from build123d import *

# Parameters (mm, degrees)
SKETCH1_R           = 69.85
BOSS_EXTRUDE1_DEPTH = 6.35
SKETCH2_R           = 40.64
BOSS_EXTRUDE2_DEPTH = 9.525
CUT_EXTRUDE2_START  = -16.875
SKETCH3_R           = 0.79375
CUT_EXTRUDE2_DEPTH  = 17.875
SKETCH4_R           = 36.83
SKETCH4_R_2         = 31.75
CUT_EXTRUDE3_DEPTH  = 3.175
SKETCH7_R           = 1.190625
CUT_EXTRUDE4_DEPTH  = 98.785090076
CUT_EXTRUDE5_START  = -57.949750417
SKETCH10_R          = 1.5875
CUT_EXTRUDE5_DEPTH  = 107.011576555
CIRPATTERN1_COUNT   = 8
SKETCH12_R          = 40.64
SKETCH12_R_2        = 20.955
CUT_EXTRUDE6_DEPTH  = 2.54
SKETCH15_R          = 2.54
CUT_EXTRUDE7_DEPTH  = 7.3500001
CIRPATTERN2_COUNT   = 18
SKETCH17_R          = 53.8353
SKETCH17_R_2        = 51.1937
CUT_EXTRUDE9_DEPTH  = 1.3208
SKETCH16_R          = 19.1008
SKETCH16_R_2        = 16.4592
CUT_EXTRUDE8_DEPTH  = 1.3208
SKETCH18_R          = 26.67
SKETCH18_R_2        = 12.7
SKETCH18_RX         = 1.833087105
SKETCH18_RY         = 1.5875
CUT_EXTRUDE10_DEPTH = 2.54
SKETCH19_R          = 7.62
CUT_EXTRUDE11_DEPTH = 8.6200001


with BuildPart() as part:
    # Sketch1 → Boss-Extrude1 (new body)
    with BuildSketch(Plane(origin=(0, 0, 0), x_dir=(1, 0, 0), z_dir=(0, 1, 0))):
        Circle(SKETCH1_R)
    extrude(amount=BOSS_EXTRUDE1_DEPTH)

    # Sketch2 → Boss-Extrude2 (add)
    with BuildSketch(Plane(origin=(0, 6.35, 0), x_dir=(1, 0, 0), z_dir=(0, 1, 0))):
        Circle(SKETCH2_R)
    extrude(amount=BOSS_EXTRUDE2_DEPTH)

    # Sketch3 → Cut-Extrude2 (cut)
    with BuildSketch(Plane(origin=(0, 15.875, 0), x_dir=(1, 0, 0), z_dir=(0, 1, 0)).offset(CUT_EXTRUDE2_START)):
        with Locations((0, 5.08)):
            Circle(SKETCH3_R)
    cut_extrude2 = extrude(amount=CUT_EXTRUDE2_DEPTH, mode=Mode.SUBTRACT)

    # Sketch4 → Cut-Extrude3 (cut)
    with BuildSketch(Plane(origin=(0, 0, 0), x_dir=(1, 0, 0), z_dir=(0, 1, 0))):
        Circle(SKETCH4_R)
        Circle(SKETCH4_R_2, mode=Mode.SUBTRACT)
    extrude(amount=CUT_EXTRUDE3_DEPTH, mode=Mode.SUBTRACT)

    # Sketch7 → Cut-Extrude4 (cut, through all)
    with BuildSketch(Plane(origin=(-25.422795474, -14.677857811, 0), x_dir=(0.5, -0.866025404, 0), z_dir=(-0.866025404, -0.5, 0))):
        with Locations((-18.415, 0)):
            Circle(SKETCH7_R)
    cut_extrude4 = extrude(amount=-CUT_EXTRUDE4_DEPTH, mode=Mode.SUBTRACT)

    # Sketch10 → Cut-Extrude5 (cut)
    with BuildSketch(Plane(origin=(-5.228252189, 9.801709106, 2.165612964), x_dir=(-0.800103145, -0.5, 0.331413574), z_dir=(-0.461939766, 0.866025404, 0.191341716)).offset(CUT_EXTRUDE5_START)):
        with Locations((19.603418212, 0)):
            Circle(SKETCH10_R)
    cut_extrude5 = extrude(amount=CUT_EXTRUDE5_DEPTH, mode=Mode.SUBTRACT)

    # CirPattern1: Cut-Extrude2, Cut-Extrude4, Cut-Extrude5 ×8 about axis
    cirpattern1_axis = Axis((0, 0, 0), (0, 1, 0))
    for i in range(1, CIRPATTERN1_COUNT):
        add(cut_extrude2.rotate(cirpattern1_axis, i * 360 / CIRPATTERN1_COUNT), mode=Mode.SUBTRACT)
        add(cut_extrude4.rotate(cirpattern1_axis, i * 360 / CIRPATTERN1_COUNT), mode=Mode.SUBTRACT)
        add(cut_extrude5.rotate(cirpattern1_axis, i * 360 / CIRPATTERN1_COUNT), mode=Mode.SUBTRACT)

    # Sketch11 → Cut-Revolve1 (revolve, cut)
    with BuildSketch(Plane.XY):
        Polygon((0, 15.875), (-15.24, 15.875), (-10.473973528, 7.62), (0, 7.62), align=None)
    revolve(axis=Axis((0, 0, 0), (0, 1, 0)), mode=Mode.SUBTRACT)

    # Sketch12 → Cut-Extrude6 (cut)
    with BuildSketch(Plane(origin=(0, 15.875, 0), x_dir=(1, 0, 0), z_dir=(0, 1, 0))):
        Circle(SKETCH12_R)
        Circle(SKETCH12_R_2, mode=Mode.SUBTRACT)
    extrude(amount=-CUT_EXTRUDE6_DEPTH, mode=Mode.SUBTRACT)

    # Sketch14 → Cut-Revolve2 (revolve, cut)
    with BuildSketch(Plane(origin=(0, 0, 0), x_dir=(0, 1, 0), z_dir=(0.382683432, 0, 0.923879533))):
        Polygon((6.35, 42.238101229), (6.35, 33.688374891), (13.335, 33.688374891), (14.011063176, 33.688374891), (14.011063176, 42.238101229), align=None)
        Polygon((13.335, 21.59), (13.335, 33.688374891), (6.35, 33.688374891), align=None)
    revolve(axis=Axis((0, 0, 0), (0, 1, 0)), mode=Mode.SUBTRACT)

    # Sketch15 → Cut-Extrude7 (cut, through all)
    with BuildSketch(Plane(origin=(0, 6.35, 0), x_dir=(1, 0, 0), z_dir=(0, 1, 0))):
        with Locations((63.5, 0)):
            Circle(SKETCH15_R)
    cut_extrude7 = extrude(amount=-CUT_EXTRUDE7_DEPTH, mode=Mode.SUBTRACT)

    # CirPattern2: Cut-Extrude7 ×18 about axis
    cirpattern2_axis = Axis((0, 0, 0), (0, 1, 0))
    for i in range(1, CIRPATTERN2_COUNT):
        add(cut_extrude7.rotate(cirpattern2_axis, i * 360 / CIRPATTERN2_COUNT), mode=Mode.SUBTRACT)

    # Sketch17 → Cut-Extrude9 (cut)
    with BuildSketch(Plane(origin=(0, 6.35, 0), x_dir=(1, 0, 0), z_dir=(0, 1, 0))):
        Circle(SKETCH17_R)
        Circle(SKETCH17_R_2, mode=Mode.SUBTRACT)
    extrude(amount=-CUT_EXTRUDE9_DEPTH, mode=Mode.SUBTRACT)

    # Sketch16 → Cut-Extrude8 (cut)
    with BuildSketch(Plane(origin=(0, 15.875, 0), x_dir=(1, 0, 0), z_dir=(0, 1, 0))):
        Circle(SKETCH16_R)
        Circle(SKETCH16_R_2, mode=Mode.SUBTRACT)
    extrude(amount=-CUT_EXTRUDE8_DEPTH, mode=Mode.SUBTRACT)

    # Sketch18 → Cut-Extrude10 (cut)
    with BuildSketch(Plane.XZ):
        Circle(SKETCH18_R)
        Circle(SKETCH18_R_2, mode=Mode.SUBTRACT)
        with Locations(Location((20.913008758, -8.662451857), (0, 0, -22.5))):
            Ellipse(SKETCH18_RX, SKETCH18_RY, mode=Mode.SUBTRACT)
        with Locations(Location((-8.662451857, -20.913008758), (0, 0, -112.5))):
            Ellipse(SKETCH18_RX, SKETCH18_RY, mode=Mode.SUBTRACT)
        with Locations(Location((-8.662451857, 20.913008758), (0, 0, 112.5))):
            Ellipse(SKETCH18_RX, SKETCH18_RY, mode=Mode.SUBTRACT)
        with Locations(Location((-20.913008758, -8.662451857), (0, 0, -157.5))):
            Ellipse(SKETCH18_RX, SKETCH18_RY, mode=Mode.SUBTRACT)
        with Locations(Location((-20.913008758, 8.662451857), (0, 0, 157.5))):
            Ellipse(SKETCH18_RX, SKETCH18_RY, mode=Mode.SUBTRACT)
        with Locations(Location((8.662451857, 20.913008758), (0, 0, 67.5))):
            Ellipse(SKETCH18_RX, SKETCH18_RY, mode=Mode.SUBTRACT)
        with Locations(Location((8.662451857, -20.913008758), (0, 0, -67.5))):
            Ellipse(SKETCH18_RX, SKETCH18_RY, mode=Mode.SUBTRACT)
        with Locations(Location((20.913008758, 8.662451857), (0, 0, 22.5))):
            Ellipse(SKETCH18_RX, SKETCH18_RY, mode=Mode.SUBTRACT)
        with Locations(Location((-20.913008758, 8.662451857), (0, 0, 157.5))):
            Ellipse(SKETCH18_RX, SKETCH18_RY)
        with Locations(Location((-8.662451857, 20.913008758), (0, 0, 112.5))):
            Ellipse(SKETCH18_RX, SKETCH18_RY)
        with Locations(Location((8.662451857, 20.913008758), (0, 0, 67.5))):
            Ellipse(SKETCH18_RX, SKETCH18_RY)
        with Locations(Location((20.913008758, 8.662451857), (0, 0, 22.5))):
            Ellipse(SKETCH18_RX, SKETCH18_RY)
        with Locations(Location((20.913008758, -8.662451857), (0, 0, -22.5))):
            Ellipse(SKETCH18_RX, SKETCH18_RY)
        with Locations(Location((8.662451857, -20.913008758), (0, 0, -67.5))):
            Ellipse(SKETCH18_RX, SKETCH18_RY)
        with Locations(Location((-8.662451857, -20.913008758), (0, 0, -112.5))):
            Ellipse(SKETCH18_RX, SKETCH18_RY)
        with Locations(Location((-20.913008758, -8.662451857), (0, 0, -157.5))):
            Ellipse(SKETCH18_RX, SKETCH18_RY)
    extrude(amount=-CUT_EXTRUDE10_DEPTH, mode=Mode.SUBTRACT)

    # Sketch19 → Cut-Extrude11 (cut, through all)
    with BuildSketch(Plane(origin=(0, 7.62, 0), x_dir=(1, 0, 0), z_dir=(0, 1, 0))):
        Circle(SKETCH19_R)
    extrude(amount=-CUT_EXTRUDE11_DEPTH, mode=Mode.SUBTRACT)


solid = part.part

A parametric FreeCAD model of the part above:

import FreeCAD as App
import Part
import Sketcher
Q = App.Units.Quantity


def add_polygon(sketch, points):
    """Adds a closed chain of lines whose ends are joined by coincident constraints."""
    first, n = sketch.GeometryCount, len(points)
    for a, b in zip(points, points[1:] + points[:1]):
        sketch.addGeometry(Part.LineSegment(App.Vector(*a, 0), App.Vector(*b, 0)), False)
    for i in range(n):
        sketch.addConstraint(Sketcher.Constraint("Coincident", first + i, 2, first + (i + 1) % n, 1))

doc = App.newDocument("Part")
params = doc.addObject("Spreadsheet::Sheet", "Params")
for row, (alias, value) in enumerate([
    ("sketch1_diameter", "5.5 in"),
    ("pad1_length", "0.25 in"),
    ("sketch2_diameter", "3.2 in"),
    ("pad2_length", "0.375 in"),
    ("sketch3_diameter", "0.0625 in"),
    ("pocket1_length", "17.875 mm"),
    ("sketch4_diameter", "2.9 in"),
    ("sketch4_diameter2", "2.5 in"),
    ("pocket2_length", "0.125 in"),
    ("sketch5_diameter", "0.09375 in"),
    ("sketch6_diameter", "0.125 in"),
    ("pocket4_length", "107.011577 mm"),
    ("sketch7_width", "0.6 in"),
    ("sketch7_height", "0.325 in"),
    ("groove_angle", "360 deg"),
    ("sketch8_diameter", "3.2 in"),
    ("sketch8_diameter2", "1.65 in"),
    ("pocket5_length", "0.1 in"),
    ("sketch9_length", "0.55 in"),
    ("groove2_angle", "360 deg"),
    ("sketch10_diameter", "0.2 in"),
    ("sketch11_diameter", "4.239 in"),
    ("sketch11_diameter2", "4.031 in"),
    ("pocket7_length", "0.052 in"),
    ("sketch12_diameter", "1.504 in"),
    ("sketch12_diameter2", "1.296 in"),
    ("pocket8_length", "0.052 in"),
    ("sketch13_diameter", "1 in"),
    ("sketch13_diameter2", "2.1 in"),
    ("pocket9_length", "0.1 in"),
    ("sketch14_diameter", "0.6 in"),
], start=1):
    params.set(f"A{row}", alias)
    params.set(f"B{row}", "=" + value)
    params.setAlias(f"B{row}", alias)

body = doc.addObject("PartDesign::Body", "Body")

# Sketch on XZ plane
sketch1 = body.newObject("Sketcher::SketchObject", "Sketch")
sketch1.AttachmentSupport = (doc.getObject("XZ_Plane"), [""])
sketch1.MapMode = "FlatFace"
sketch1.addGeometry(Part.Circle(App.Vector(0, 0, 0), App.Vector(0, 0, 1), 69.85), False)
sketch1.addConstraint([
    Sketcher.Constraint("Coincident", 0, 3, -1, 1),
    Sketcher.Constraint("Diameter", 0, Q("5.5 in")),
])
sketch1.setExpression("Constraints[1]", "Params.sketch1_diameter")
pad1 = body.newObject("PartDesign::Pad", "Pad")
pad1.Profile = sketch1
pad1.setExpression("Length", "Params.pad1_length")
pad1.Reversed = True

# Sketch on XZ plane
sketch2 = body.newObject("Sketcher::SketchObject", "Sketch001")
sketch2.AttachmentSupport = (doc.getObject("XZ_Plane"), [""])
sketch2.MapMode = "FlatFace"
sketch2.AttachmentOffset = App.Placement(App.Vector(0, 0, -0.25 * 25.4), App.Rotation())
sketch2.addGeometry(Part.Circle(App.Vector(0, 0, 0), App.Vector(0, 0, 1), 40.64), False)
sketch2.addConstraint([
    Sketcher.Constraint("Coincident", 0, 3, -1, 1),
    Sketcher.Constraint("Diameter", 0, Q("3.2 in")),
])
sketch2.setExpression("Constraints[1]", "Params.sketch2_diameter")
pad2 = body.newObject("PartDesign::Pad", "Pad001")
pad2.Profile = sketch2
pad2.setExpression("Length", "Params.pad2_length")
pad2.Reversed = True

# Sketch on XZ plane
sketch3 = body.newObject("Sketcher::SketchObject", "Sketch002")
sketch3.AttachmentSupport = (doc.getObject("XZ_Plane"), [""])
sketch3.MapMode = "FlatFace"
sketch3.AttachmentOffset = App.Placement(App.Vector(0, 0, 1), App.Rotation())
sketch3.addGeometry(Part.Circle(App.Vector(0, -5.08, 0), App.Vector(0, 0, 1), 0.79375), False)
sketch3.addConstraint([
    Sketcher.Constraint("PointOnObject", 0, 3, -2),
    Sketcher.Constraint("Diameter", 0, Q("0.0625 in")),
    Sketcher.Constraint("DistanceY", 0, 3, -1, 1, Q("0.2 in")),
])
sketch3.setExpression("Constraints[1]", "Params.sketch3_diameter")
pocket1 = body.newObject("PartDesign::Pocket", "Pocket")
pocket1.Profile = sketch3
pocket1.setExpression("Length", "Params.pocket1_length")

# Sketch on XZ plane
sketch4 = body.newObject("Sketcher::SketchObject", "Sketch003")
sketch4.AttachmentSupport = (doc.getObject("XZ_Plane"), [""])
sketch4.MapMode = "FlatFace"
sketch4.addGeometry([
    Part.Circle(App.Vector(0, 0, 0), App.Vector(0, 0, 1), 36.83),
    Part.Circle(App.Vector(0, 0, 0), App.Vector(0, 0, 1), 31.75),
], False)
sketch4.addConstraint([
    Sketcher.Constraint("Coincident", 0, 3, -1, 1),
    Sketcher.Constraint("Coincident", 1, 3, -1, 1),
    Sketcher.Constraint("Diameter", 0, Q("2.9 in")),
    Sketcher.Constraint("Diameter", 1, Q("2.5 in")),
])
sketch4.setExpression("Constraints[2]", "Params.sketch4_diameter")
sketch4.setExpression("Constraints[3]", "Params.sketch4_diameter2")
pocket2 = body.newObject("PartDesign::Pocket", "Pocket001")
pocket2.Profile = sketch4
pocket2.setExpression("Length", "Params.pocket2_length")

# Sketch on an angled plane
sketch5 = body.newObject("Sketcher::SketchObject", "Sketch004")
sketch5.Placement = App.Placement(App.Vector(-25.422795, -14.677858, 0), App.Rotation(App.Vector(0.5, -0.866025404, 0), App.Vector(0, 0, 1), App.Vector(-0.866025404, -0.5, 0), "ZXY"))
sketch5.addGeometry(Part.Circle(App.Vector(-18.415, 0, 0), App.Vector(0, 0, 1), 1.190625), False)
sketch5.addConstraint([
    Sketcher.Constraint("PointOnObject", 0, 3, -1),
    Sketcher.Constraint("Diameter", 0, Q("0.09375 in")),
    Sketcher.Constraint("DistanceX", 0, 3, -1, 1, Q("0.725 in")),
])
sketch5.setExpression("Constraints[1]", "Params.sketch5_diameter")
pocket3 = body.newObject("PartDesign::Pocket", "Pocket002")
pocket3.Profile = sketch5
pocket3.Type = "ThroughAll"

# Sketch on an angled plane
sketch6 = body.newObject("Sketcher::SketchObject", "Sketch005")
sketch6.Placement = App.Placement(App.Vector(21.541042, -40.384247, -8.922592), App.Rotation(App.Vector(-0.800103145, -0.5, 0.331413574), App.Vector(0.382683432, 0, 0.923879532), App.Vector(-0.461939766, 0.866025404, 0.191341716), "ZXY"))
sketch6.addGeometry(Part.Circle(App.Vector(19.603418, 0, 0), App.Vector(0, 0, 1), 1.5875), False)
sketch6.addConstraint([
    Sketcher.Constraint("PointOnObject", 0, 3, -1),
    Sketcher.Constraint("Diameter", 0, Q("0.125 in")),
    Sketcher.Constraint("DistanceX", -1, 1, 0, 3, 19.603418),
])
sketch6.setExpression("Constraints[1]", "Params.sketch6_diameter")
pocket4 = body.newObject("PartDesign::Pocket", "Pocket003")
pocket4.Profile = sketch6
pocket4.setExpression("Length", "Params.pocket4_length")
pocket4.Reversed = True
doc.recompute()

polarpattern = body.newObject("PartDesign::PolarPattern", "PolarPattern")
polarpattern.Originals = [pocket1, pocket3, pocket4]
polarpattern.Axis = (doc.getObject("Y_Axis"), [""])
polarpattern.Angle = 360
polarpattern.Occurrences = 8
body.Tip = polarpattern

# Sketch on XY plane
sketch7 = body.newObject("Sketcher::SketchObject", "Sketch006")
sketch7.AttachmentSupport = (doc.getObject("XY_Plane"), [""])
sketch7.MapMode = "FlatFace"
add_polygon(sketch7, [(0, 15.875), (-15.24, 15.875), (-10.473974, 7.62), (0, 7.62)])  # lines 0-3
sketch7.addConstraint([
    Sketcher.Constraint("Horizontal", 0),
    Sketcher.Constraint("Horizontal", 2),
    Sketcher.Constraint("Vertical", 3),
    Sketcher.Constraint("PointOnObject", 2, 2, -2),
    Sketcher.Constraint("DistanceX", 0, 2, 0, 1, Q("0.6 in")),
    Sketcher.Constraint("Angle", 1, Q("-60 deg")),
    Sketcher.Constraint("DistanceY", -1, 1, 1, 2, Q("0.3 in")),
    Sketcher.Constraint("DistanceY", 3, 1, 3, 2, Q("0.325 in")),
])
sketch7.setExpression("Constraints[8]", "Params.sketch7_width")
sketch7.setExpression("Constraints[11]", "Params.sketch7_height")
groove = body.newObject("PartDesign::Groove", "Groove")
groove.Profile = sketch7
groove.ReferenceAxis = (sketch7, ["V_Axis"])
groove.setExpression("Angle", "Params.groove_angle")

# Sketch on XZ plane
sketch8 = body.newObject("Sketcher::SketchObject", "Sketch007")
sketch8.AttachmentSupport = (doc.getObject("XZ_Plane"), [""])
sketch8.MapMode = "FlatFace"
sketch8.AttachmentOffset = App.Placement(App.Vector(0, 0, -0.625 * 25.4), App.Rotation())
sketch8.addGeometry([
    Part.Circle(App.Vector(0, 0, 0), App.Vector(0, 0, 1), 40.64),
    Part.Circle(App.Vector(0, 0, 0), App.Vector(0, 0, 1), 20.955),
], False)
sketch8.addConstraint([
    Sketcher.Constraint("Coincident", 0, 3, -1, 1),
    Sketcher.Constraint("Coincident", 1, 3, -1, 1),
    Sketcher.Constraint("Diameter", 0, Q("3.2 in")),
    Sketcher.Constraint("Diameter", 1, Q("1.65 in")),
])
sketch8.setExpression("Constraints[2]", "Params.sketch8_diameter")
sketch8.setExpression("Constraints[3]", "Params.sketch8_diameter2")
pocket5 = body.newObject("PartDesign::Pocket", "Pocket004")
pocket5.Profile = sketch8
pocket5.setExpression("Length", "Params.pocket5_length")
pocket5.Reversed = True

# Sketch on an angled plane
sketch9 = body.newObject("Sketcher::SketchObject", "Sketch008")
sketch9.Placement = App.Placement(App.Vector(0, 0, 0), App.Rotation(App.Vector(0, 1, 0), App.Vector(-0.923879533, 0, 0.382683432), App.Vector(0.382683432, 0, 0.923879533), "ZXY"))
add_polygon(sketch9, [(6.35, 42.238101), (6.35, 33.688375), (13.335, 21.59), (13.335, 33.688375), (14.011063, 33.688375), (14.011063, 42.238101)])  # lines 0-5
sketch9.addConstraint([
    Sketcher.Constraint("Vertical", 0),
    Sketcher.Constraint("Vertical", 2),
    Sketcher.Constraint("Horizontal", 3),
    Sketcher.Constraint("Vertical", 4),
    Sketcher.Constraint("Horizontal", 5),
    Sketcher.Constraint("Horizontal", 0, 2, 2, 2),
    Sketcher.Constraint("Angle", 1, Q("-60 deg")),
    Sketcher.Constraint("Distance", 1, Q("0.55 in")),
    Sketcher.Constraint("DistanceX", -1, 1, 0, 2, Q("0.25 in")),
    Sketcher.Constraint("DistanceY", -1, 1, 1, 2, Q("0.85 in")),
    Sketcher.Constraint("DistanceY", -1, 1, 4, 2, 42.238101),
    Sketcher.Constraint("DistanceX", 3, 1, 3, 2, 0.676063),
])
sketch9.setExpression("Constraints[13]", "Params.sketch9_length")
groove2 = body.newObject("PartDesign::Groove", "Groove001")
groove2.Profile = sketch9
groove2.ReferenceAxis = (sketch9, ["H_Axis"])
groove2.setExpression("Angle", "Params.groove2_angle")

# Sketch on XZ plane
sketch10 = body.newObject("Sketcher::SketchObject", "Sketch009")
sketch10.AttachmentSupport = (doc.getObject("XZ_Plane"), [""])
sketch10.MapMode = "FlatFace"
sketch10.AttachmentOffset = App.Placement(App.Vector(0, 0, -0.25 * 25.4), App.Rotation())
sketch10.addGeometry(Part.Circle(App.Vector(63.5, 0, 0), App.Vector(0, 0, 1), 2.54), False)
sketch10.addConstraint([
    Sketcher.Constraint("PointOnObject", 0, 3, -1),
    Sketcher.Constraint("Diameter", 0, Q("0.2 in")),
    Sketcher.Constraint("DistanceX", -1, 1, 0, 3, Q("2.5 in")),
])
sketch10.setExpression("Constraints[1]", "Params.sketch10_diameter")
pocket6 = body.newObject("PartDesign::Pocket", "Pocket005")
pocket6.Profile = sketch10
pocket6.Type = "ThroughAll"
pocket6.Reversed = True
doc.recompute()

polarpattern2 = body.newObject("PartDesign::PolarPattern", "PolarPattern001")
polarpattern2.Originals = [pocket6]
polarpattern2.Axis = (doc.getObject("Y_Axis"), [""])
polarpattern2.Angle = 360
polarpattern2.Occurrences = 18
body.Tip = polarpattern2

# Sketch on XZ plane
sketch11 = body.newObject("Sketcher::SketchObject", "Sketch010")
sketch11.AttachmentSupport = (doc.getObject("XZ_Plane"), [""])
sketch11.MapMode = "FlatFace"
sketch11.AttachmentOffset = App.Placement(App.Vector(0, 0, -0.25 * 25.4), App.Rotation())
sketch11.addGeometry([
    Part.Circle(App.Vector(0, 0, 0), App.Vector(0, 0, 1), 53.8353),
    Part.Circle(App.Vector(0, 0, 0), App.Vector(0, 0, 1), 51.1937),
], False)
sketch11.addConstraint([
    Sketcher.Constraint("Coincident", 0, 3, -1, 1),
    Sketcher.Constraint("Coincident", 1, 3, -1, 1),
    Sketcher.Constraint("Diameter", 0, Q("4.239 in")),
    Sketcher.Constraint("Diameter", 1, Q("4.031 in")),
])
sketch11.setExpression("Constraints[2]", "Params.sketch11_diameter")
sketch11.setExpression("Constraints[3]", "Params.sketch11_diameter2")
pocket7 = body.newObject("PartDesign::Pocket", "Pocket006")
pocket7.Profile = sketch11
pocket7.setExpression("Length", "Params.pocket7_length")
pocket7.Reversed = True

# Sketch on XZ plane
sketch12 = body.newObject("Sketcher::SketchObject", "Sketch011")
sketch12.AttachmentSupport = (doc.getObject("XZ_Plane"), [""])
sketch12.MapMode = "FlatFace"
sketch12.AttachmentOffset = App.Placement(App.Vector(0, 0, -0.625 * 25.4), App.Rotation())
sketch12.addGeometry([
    Part.Circle(App.Vector(0, 0, 0), App.Vector(0, 0, 1), 19.1008),
    Part.Circle(App.Vector(0, 0, 0), App.Vector(0, 0, 1), 16.4592),
], False)
sketch12.addConstraint([
    Sketcher.Constraint("Coincident", 0, 3, -1, 1),
    Sketcher.Constraint("Coincident", 1, 3, -1, 1),
    Sketcher.Constraint("Diameter", 0, Q("1.504 in")),
    Sketcher.Constraint("Diameter", 1, Q("1.296 in")),
])
sketch12.setExpression("Constraints[2]", "Params.sketch12_diameter")
sketch12.setExpression("Constraints[3]", "Params.sketch12_diameter2")
pocket8 = body.newObject("PartDesign::Pocket", "Pocket007")
pocket8.Profile = sketch12
pocket8.setExpression("Length", "Params.pocket8_length")
pocket8.Reversed = True

# Sketch on XZ plane
sketch13 = body.newObject("Sketcher::SketchObject", "Sketch012")
sketch13.AttachmentSupport = (doc.getObject("XZ_Plane"), [""])
sketch13.MapMode = "FlatFace"
sketch13.addGeometry([
    Part.Circle(App.Vector(0, 0, 0), App.Vector(0, 0, 1), 26.67),
    Part.Circle(App.Vector(0, 0, 0), App.Vector(0, 0, 1), 12.7),
], False)
sketch13.addConstraint([
    Sketcher.Constraint("Coincident", 0, 3, -1, 1),
    Sketcher.Constraint("Coincident", 1, 3, -1, 1),
    Sketcher.Constraint("Diameter", 1, Q("1 in")),
    Sketcher.Constraint("Diameter", 0, Q("2.1 in")),
])
sketch13.setExpression("Constraints[2]", "Params.sketch13_diameter")
sketch13.setExpression("Constraints[3]", "Params.sketch13_diameter2")
pocket9 = body.newObject("PartDesign::Pocket", "Pocket008")
pocket9.Profile = sketch13
pocket9.setExpression("Length", "Params.pocket9_length")

# Sketch on XZ plane
sketch14 = body.newObject("Sketcher::SketchObject", "Sketch013")
sketch14.AttachmentSupport = (doc.getObject("XZ_Plane"), [""])
sketch14.MapMode = "FlatFace"
sketch14.AttachmentOffset = App.Placement(App.Vector(0, 0, -0.3 * 25.4), App.Rotation())
sketch14.addGeometry(Part.Circle(App.Vector(0, 0, 0), App.Vector(0, 0, 1), 7.62), False)
sketch14.addConstraint([
    Sketcher.Constraint("Coincident", 0, 3, -1, 1),
    Sketcher.Constraint("Diameter", 0, Q("0.6 in")),
])
sketch14.setExpression("Constraints[1]", "Params.sketch14_diameter")
pocket10 = body.newObject("PartDesign::Pocket", "Pocket009")
pocket10.Profile = sketch14
pocket10.Type = "ThroughAll"
pocket10.Reversed = True

doc.recompute()
